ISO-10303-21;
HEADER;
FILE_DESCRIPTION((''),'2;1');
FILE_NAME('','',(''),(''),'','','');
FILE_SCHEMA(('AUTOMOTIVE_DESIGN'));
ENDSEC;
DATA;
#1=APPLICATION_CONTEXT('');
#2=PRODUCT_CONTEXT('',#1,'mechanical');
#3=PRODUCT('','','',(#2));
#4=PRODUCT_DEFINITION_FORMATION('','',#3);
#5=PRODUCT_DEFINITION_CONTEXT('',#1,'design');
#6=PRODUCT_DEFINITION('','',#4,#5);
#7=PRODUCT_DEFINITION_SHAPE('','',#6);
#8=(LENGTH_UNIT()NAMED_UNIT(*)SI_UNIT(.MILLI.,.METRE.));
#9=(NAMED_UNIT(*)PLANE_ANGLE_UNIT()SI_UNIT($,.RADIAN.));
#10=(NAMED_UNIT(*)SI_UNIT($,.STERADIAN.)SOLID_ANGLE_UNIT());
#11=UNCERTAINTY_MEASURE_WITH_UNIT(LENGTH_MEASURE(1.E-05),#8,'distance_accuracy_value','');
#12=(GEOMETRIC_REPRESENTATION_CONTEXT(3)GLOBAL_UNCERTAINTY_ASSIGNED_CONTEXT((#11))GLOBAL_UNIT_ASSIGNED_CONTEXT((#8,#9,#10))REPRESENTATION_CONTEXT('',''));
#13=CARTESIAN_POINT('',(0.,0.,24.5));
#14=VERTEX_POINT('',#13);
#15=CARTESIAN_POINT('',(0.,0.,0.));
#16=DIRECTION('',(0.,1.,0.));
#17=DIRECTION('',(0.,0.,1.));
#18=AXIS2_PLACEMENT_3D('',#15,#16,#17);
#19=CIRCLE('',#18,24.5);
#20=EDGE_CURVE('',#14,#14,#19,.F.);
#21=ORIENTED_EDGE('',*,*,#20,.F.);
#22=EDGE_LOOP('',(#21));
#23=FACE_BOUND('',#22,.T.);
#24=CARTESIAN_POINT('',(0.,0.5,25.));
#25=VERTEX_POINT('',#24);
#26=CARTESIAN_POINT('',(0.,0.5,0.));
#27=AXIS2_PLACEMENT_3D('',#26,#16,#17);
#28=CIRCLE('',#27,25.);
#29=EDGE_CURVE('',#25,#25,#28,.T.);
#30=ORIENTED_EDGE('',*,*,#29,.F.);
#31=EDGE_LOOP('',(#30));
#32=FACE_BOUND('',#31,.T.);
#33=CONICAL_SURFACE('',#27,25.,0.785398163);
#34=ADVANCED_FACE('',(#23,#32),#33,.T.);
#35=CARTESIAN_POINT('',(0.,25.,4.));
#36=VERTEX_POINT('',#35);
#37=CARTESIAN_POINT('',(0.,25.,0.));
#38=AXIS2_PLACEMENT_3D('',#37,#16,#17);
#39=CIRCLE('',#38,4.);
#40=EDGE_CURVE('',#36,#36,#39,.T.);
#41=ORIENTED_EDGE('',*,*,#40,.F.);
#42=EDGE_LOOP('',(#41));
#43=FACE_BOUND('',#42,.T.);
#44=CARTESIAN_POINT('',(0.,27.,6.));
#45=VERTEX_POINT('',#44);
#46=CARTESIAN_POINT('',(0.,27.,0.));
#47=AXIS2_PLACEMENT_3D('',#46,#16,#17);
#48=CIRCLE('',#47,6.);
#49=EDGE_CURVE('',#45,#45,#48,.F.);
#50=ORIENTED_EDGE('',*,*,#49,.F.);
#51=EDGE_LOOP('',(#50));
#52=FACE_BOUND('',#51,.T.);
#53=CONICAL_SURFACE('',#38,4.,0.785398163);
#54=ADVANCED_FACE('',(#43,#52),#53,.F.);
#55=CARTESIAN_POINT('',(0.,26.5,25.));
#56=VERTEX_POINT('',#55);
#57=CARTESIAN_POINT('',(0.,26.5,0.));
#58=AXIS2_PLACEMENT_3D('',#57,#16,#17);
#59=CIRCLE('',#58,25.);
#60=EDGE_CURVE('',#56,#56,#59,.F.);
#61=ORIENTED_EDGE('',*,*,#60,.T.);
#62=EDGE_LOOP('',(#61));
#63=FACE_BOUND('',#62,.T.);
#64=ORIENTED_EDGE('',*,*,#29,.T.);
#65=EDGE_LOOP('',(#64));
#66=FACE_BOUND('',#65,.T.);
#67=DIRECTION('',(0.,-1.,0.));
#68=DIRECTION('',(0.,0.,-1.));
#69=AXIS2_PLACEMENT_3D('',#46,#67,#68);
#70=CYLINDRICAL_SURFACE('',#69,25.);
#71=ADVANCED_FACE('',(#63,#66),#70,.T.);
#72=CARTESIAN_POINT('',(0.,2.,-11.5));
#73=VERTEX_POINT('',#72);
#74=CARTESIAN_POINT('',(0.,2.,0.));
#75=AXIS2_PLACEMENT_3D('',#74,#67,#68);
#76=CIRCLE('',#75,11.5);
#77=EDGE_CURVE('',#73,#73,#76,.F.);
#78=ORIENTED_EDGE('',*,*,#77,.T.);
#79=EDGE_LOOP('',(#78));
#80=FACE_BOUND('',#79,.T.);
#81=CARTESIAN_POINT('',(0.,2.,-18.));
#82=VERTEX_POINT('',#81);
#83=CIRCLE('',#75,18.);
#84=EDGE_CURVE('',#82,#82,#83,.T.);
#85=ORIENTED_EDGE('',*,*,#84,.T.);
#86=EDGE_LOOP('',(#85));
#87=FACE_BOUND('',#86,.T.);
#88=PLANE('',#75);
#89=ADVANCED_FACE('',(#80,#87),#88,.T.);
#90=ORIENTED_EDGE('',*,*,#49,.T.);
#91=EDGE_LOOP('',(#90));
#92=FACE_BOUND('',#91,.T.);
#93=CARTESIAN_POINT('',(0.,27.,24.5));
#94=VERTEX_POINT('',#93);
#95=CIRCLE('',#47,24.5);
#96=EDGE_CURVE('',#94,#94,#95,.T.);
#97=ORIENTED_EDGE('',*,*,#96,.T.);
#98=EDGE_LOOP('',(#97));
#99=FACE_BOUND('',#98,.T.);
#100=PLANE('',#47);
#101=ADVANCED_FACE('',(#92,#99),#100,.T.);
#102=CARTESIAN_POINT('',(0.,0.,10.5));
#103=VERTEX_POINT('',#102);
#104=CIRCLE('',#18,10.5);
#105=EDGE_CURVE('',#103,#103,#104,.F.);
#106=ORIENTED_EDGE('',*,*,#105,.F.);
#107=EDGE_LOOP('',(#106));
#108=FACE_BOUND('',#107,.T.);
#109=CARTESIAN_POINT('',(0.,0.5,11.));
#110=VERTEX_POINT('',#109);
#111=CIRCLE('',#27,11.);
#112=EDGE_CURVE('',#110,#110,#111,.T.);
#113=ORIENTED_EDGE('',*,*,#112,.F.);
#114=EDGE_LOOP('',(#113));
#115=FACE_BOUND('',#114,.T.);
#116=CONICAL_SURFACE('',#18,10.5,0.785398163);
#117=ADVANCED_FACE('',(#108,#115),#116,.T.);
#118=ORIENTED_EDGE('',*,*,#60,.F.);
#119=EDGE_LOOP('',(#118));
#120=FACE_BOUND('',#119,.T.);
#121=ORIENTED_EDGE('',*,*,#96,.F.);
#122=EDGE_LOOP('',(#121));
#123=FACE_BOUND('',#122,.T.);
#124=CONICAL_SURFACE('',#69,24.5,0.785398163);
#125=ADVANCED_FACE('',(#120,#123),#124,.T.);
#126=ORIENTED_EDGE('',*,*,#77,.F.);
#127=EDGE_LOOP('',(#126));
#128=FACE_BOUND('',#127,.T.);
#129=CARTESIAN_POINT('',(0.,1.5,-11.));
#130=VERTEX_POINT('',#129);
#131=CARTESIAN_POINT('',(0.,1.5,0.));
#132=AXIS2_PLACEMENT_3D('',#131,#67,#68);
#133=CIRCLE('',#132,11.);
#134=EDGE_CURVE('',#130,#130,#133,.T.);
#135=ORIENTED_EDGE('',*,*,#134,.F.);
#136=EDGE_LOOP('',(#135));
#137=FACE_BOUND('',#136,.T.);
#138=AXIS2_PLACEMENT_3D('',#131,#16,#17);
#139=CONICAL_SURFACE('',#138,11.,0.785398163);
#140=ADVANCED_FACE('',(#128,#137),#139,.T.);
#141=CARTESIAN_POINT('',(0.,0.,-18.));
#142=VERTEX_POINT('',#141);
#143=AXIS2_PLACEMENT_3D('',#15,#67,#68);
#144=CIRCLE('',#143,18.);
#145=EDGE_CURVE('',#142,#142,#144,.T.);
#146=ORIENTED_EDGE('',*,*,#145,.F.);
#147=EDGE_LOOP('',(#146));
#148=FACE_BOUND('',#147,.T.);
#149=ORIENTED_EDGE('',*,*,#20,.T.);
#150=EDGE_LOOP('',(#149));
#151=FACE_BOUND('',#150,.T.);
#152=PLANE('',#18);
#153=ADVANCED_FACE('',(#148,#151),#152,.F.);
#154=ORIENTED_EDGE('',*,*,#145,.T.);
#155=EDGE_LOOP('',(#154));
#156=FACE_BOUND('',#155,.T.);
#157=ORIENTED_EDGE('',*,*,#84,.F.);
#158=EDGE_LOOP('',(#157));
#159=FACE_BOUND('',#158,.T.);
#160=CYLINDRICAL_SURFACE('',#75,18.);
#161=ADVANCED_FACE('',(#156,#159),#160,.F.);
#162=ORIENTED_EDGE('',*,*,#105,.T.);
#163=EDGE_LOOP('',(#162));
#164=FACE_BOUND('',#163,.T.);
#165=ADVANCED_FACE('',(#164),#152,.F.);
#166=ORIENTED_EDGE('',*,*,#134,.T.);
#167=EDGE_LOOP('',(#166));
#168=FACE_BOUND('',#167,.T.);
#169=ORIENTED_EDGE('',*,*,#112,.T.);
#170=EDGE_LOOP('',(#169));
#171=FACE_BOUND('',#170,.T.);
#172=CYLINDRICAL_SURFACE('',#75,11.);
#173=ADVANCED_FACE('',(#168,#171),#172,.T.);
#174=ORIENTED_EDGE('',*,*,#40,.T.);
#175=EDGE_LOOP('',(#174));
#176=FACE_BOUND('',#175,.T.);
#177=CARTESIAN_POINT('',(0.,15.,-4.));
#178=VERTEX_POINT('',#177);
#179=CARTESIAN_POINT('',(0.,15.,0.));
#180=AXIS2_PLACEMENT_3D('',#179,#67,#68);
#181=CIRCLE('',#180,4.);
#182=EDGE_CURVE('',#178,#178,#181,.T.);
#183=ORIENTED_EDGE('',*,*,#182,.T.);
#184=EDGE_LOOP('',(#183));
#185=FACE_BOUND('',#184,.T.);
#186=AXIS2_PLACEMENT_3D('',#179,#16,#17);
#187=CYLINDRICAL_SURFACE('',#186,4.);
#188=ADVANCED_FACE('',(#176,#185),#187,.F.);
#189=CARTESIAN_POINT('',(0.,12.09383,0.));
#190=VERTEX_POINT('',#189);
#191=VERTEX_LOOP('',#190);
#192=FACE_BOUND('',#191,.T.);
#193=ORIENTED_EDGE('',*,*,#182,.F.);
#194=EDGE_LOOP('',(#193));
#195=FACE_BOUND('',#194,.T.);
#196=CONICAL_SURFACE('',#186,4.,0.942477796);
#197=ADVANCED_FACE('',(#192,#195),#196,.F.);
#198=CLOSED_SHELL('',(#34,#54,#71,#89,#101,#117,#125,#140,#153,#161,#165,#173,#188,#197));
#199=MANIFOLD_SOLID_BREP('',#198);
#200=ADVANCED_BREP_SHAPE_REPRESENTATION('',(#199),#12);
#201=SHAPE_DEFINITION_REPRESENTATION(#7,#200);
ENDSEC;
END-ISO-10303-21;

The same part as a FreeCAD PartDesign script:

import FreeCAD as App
import Part
import Sketcher

V = App.Vector
Q = App.Units.Quantity


def edges_at(feature, points):
    """Names of the edges that pass closest to the given points."""
    edges = feature.Shape.Edges
    near = lambda p: min(range(len(edges)), key=lambda i: edges[i].distToShape(Part.Vertex(*p))[0])
    return sorted({f"Edge{near(p) + 1}" for p in points})

doc = App.newDocument("Part")
body = doc.addObject("PartDesign::Body", "Body")

sketch1 = body.newObject("Sketcher::SketchObject", "Sketch")
sketch1.AttachmentSupport = (doc.getObject("XZ_Plane"), [""])
sketch1.MapMode = "FlatFace"
sketch1.addGeometry(Part.Circle(V(0, 0, 0), V(0, 0, 1), 25), False)
sketch1.addConstraint(Sketcher.Constraint("Coincident", 0, 3, -1, 1))
sketch1.addConstraint(Sketcher.Constraint("Diameter", 0, Q("50 mm")))
pad1 = body.newObject("PartDesign::Pad", "Pad")
pad1.Profile = sketch1
pad1.Length = 27
pad1.Reversed = True

sketch2 = body.newObject("Sketcher::SketchObject", "Sketch001")
sketch2.AttachmentSupport = (doc.getObject("XZ_Plane"), [""])
sketch2.MapMode = "FlatFace"
sketch2.AttachmentOffset = App.Placement(V(0, 0, -27), App.Rotation())
sketch2.addGeometry(Part.Circle(V(0, 0, 0), V(0, 0, 1), 4), False)
sketch2.addConstraint(Sketcher.Constraint("Coincident", 0, 3, -1, 1))
sketch2.addConstraint(Sketcher.Constraint("Diameter", 0, Q("8 mm")))
pocket1 = body.newObject("PartDesign::Pocket", "Pocket")
pocket1.Profile = sketch2
pocket1.Length = 12
pocket1.Reversed = True

sketch3 = body.newObject("Sketcher::SketchObject", "Sketch002")
sketch3.AttachmentSupport = (doc.getObject("XY_Plane"), [""])
sketch3.MapMode = "FlatFace"
sketch3.addGeometry(Part.LineSegment(V(-4, 15, 0), V(0, 12.1, 0)), False)
sketch3.addGeometry(Part.LineSegment(V(0, 12.1, 0), V(0, 15, 0)), False)
sketch3.addGeometry(Part.LineSegment(V(0, 15, 0), V(-4, 15, 0)), False)
sketch3.addConstraint(Sketcher.Constraint("Coincident", 0, 2, 1, 1))
sketch3.addConstraint(Sketcher.Constraint("Coincident", 1, 2, 2, 1))
sketch3.addConstraint(Sketcher.Constraint("Coincident", 2, 2, 0, 1))
sketch3.addConstraint(Sketcher.Constraint("Vertical", 1))
sketch3.addConstraint(Sketcher.Constraint("Horizontal", 2))
sketch3.addConstraint(Sketcher.Constraint("PointOnObject", 0, 2, -2))
sketch3.addConstraint(Sketcher.Constraint("DistanceX", 2, 2, 2, 1, Q("4 mm")))
sketch3.addConstraint(Sketcher.Constraint("Angle", 0, Q("-36 deg")))
sketch3.addConstraint(Sketcher.Constraint("DistanceY", -1, 1, 1, 2, Q("15 mm")))
groove = body.newObject("PartDesign::Groove", "Groove")
groove.Profile = sketch3
groove.ReferenceAxis = (sketch3, ["V_Axis"])
groove.Angle = 360
doc.recompute()

chamfer = body.newObject("PartDesign::Chamfer", "Chamfer")
chamfer.Base = (groove, edges_at(groove, [(0, 27, -4)]))
chamfer.Size = 2
doc.recompute()

chamfer2 = body.newObject("PartDesign::Chamfer", "Chamfer001")
chamfer2.Base = (chamfer, edges_at(chamfer, [(0, 0, -25), (0, 27, -25)]))
chamfer2.Size = 0.5

sketch4 = body.newObject("Sketcher::SketchObject", "Sketch003")
sketch4.AttachmentSupport = (doc.getObject("XZ_Plane"), [""])
sketch4.MapMode = "FlatFace"
sketch4.addGeometry(Part.Circle(V(0, 0, 0), V(0, 0, 1), 18), False)
sketch4.addGeometry(Part.Circle(V(0, 0, 0), V(0, 0, 1), 11), False)
sketch4.addConstraint(Sketcher.Constraint("Coincident", 0, 3, -1, 1))
sketch4.addConstraint(Sketcher.Constraint("Coincident", 1, 3, -1, 1))
sketch4.addConstraint(Sketcher.Constraint("Diameter", 0, Q("36 mm")))
sketch4.addConstraint(Sketcher.Constraint("Diameter", 1, Q("22 mm")))
pocket2 = body.newObject("PartDesign::Pocket", "Pocket001")
pocket2.Profile = sketch4
pocket2.Length = 2
doc.recompute()

chamfer3 = body.newObject("PartDesign::Chamfer", "Chamfer002")
chamfer3.Base = (pocket2, edges_at(pocket2, [(0, 2, 11), (0, 0, 11)]))
chamfer3.Size = 0.5

doc.recompute()
